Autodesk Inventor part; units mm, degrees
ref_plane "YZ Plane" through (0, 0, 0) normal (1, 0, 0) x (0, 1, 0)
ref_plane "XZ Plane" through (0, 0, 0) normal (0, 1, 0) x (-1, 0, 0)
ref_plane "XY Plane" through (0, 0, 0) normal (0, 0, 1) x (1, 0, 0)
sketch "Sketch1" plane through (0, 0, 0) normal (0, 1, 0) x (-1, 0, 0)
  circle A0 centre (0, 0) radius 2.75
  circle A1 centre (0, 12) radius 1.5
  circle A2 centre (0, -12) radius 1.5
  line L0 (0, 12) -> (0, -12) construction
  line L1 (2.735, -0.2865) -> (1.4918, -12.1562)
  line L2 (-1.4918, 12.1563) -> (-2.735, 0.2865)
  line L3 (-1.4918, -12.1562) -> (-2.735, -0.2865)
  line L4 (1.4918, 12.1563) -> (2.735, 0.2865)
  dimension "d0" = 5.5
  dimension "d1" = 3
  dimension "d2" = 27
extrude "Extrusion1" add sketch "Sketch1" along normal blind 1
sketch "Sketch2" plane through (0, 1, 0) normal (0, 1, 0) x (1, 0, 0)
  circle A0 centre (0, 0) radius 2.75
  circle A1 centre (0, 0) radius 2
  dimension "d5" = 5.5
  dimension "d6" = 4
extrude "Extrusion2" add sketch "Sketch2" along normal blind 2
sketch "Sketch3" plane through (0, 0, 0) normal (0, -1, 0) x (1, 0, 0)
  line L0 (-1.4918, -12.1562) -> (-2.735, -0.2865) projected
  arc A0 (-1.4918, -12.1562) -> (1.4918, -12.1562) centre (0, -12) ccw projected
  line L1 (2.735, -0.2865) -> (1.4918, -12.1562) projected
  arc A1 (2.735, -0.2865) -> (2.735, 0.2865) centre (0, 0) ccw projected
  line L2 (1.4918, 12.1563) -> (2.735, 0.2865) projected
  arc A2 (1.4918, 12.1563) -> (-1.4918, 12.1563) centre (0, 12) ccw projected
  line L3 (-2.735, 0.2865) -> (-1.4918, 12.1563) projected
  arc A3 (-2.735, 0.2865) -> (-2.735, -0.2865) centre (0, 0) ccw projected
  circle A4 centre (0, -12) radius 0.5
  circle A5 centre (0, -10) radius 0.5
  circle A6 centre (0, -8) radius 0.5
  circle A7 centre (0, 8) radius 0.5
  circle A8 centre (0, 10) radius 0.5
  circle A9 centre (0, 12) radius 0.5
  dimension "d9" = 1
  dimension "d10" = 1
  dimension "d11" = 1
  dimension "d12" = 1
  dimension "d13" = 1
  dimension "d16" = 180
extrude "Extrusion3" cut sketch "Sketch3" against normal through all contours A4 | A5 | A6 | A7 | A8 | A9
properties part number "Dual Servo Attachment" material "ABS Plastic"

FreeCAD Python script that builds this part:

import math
import FreeCAD as App
import Part
import Sketcher

V = App.Vector
Q = App.Units.Quantity

doc = App.newDocument("Part")
params = doc.addObject("Spreadsheet::Sheet", "Params")
for row, (alias, value) in enumerate([
    ("sketch1_radius", "1.5 mm"),
    ("sketch1_radius2", "2.75 mm"),
    ("pad1_length", "1 mm"),
    ("sketch2_diameter", "4 mm"),
    ("sketch2_diameter2", "5.5 mm"),
    ("pad2_length", "2 mm"),
    ("sketch3_diameter", "1 mm"),
], start=1):
    params.set(f"A{row}", alias)
    params.set(f"B{row}", "=" + value)
    params.setAlias(f"B{row}", alias)

body = doc.addObject("PartDesign::Body", "Body")

# Sketch on XZ plane
sketch1 = body.newObject("Sketcher::SketchObject", "Sketch")
sketch1.AttachmentSupport = (doc.getObject("XZ_Plane"), [""])
sketch1.MapMode = "FlatFace"
sketch1.addGeometry(Part.ArcOfCircle(Part.Circle(V(0, 0, 0), V(0, 0, 1), 2.8), math.radians(174.02), math.radians(185.98)), False)
sketch1.addGeometry(Part.LineSegment(V(-2.7, 0.3, 0), V(-1.5, 12.2, 0)), False)
sketch1.addGeometry(Part.ArcOfCircle(Part.Circle(V(0, 12, 0), V(0, 0, 1), 1.5), math.radians(6), math.radians(174)), False)
sketch1.addGeometry(Part.LineSegment(V(1.5, 12.2, 0), V(2.7, 0.3, 0)), False)
sketch1.addGeometry(Part.ArcOfCircle(Part.Circle(V(0, 0, 0), V(0, 0, 1), 2.8), math.radians(-5.98), math.radians(5.98)), False)
sketch1.addGeometry(Part.LineSegment(V(2.7, -0.3, 0), V(1.5, -12.2, 0)), False)
sketch1.addGeometry(Part.ArcOfCircle(Part.Circle(V(0, -12, 0), V(0, 0, 1), 1.5), math.radians(-174), math.radians(-6)), False)
sketch1.addGeometry(Part.LineSegment(V(-1.5, -12.2, 0), V(-2.7, -0.3, 0)), False)
sketch1.addConstraint(Sketcher.Constraint("Tangent", 0, 1, 1, 1))
sketch1.addConstraint(Sketcher.Constraint("Tangent", 1, 2, 2, 2))
sketch1.addConstraint(Sketcher.Constraint("Tangent", 2, 1, 3, 1))
sketch1.addConstraint(Sketcher.Constraint("Tangent", 3, 2, 4, 2))
sketch1.addConstraint(Sketcher.Constraint("Tangent", 4, 1, 5, 1))
sketch1.addConstraint(Sketcher.Constraint("Tangent", 5, 2, 6, 2))
sketch1.addConstraint(Sketcher.Constraint("Tangent", 6, 1, 7, 1))
sketch1.addConstraint(Sketcher.Constraint("Tangent", 7, 2, 0, 2))
sketch1.addConstraint(Sketcher.Constraint("Coincident", 0, 3, -1, 1))
sketch1.addConstraint(Sketcher.Constraint("Coincident", 4, 3, -1, 1))
sketch1.addConstraint(Sketcher.Constraint("Equal", 0, 4))
sketch1.addConstraint(Sketcher.Constraint("Equal", 2, 6))
sketch1.addConstraint(Sketcher.Constraint("Symmetric", 2, 3, 6, 3, -1, 1))
sketch1.addConstraint(Sketcher.Constraint("PointOnObject", 2, 3, -2))
sketch1.addConstraint(Sketcher.Constraint("Radius", 2, Q("1.5 mm")))
sketch1.addConstraint(Sketcher.Constraint("Radius", 0, Q("2.75 mm")))
sketch1.addConstraint(Sketcher.Constraint("DistanceY", -1, 1, 2, 3, Q("12 mm")))
sketch1.setExpression("Constraints[14]", "Params.sketch1_radius")
sketch1.setExpression("Constraints[15]", "Params.sketch1_radius2")
pad1 = body.newObject("PartDesign::Pad", "Pad")
pad1.Profile = sketch1
pad1.setExpression("Length", "Params.pad1_length")
pad1.Reversed = True

# Sketch on XZ plane
sketch2 = body.newObject("Sketcher::SketchObject", "Sketch001")
sketch2.AttachmentSupport = (doc.getObject("XZ_Plane"), [""])
sketch2.MapMode = "FlatFace"
sketch2.AttachmentOffset = App.Placement(V(0, 0, -1), App.Rotation())
sketch2.addGeometry(Part.Circle(V(0, 0, 0), V(0, 0, 1), 2.8), False)
sketch2.addGeometry(Part.Circle(V(0, 0, 0), V(0, 0, 1), 2), False)
sketch2.addConstraint(Sketcher.Constraint("Coincident", 0, 3, -1, 1))
sketch2.addConstraint(Sketcher.Constraint("Coincident", 1, 3, -1, 1))
sketch2.addConstraint(Sketcher.Constraint("Diameter", 1, Q("4 mm")))
sketch2.addConstraint(Sketcher.Constraint("Diameter", 0, Q("5.5 mm")))
sketch2.setExpression("Constraints[2]", "Params.sketch2_diameter")
sketch2.setExpression("Constraints[3]", "Params.sketch2_diameter2")
pad2 = body.newObject("PartDesign::Pad", "Pad001")
pad2.Profile = sketch2
pad2.setExpression("Length", "Params.pad2_length")
pad2.Reversed = True

# Sketch on XZ plane
sketch3 = body.newObject("Sketcher::SketchObject", "Sketch002")
sketch3.AttachmentSupport = (doc.getObject("XZ_Plane"), [""])
sketch3.MapMode = "FlatFace"
sketch3.addGeometry(Part.Circle(V(0, -12, 0), V(0, 0, 1), 0.5), False)
sketch3.addGeometry(Part.Circle(V(0, -10, 0), V(0, 0, 1), 0.5), False)
sketch3.addGeometry(Part.Circle(V(0, -8, 0), V(0, 0, 1), 0.5), False)
sketch3.addGeometry(Part.Circle(V(0, 8, 0), V(0, 0, 1), 0.5), False)
sketch3.addGeometry(Part.Circle(V(0, 10, 0), V(0, 0, 1), 0.5), False)
sketch3.addGeometry(Part.Circle(V(0, 12, 0), V(0, 0, 1), 0.5), False)
sketch3.addConstraint(Sketcher.Constraint("Equal", 0, 1))
sketch3.addConstraint(Sketcher.Constraint("Equal", 1, 2))
sketch3.addConstraint(Sketcher.Constraint("Equal", 2, 3))
sketch3.addConstraint(Sketcher.Constraint("Equal", 3, 4))
sketch3.addConstraint(Sketcher.Constraint("Equal", 4, 5))
sketch3.addConstraint(Sketcher.Constraint("Symmetric", 2, 3, 3, 3, -1, 1))
sketch3.addConstraint(Sketcher.Constraint("Symmetric", 1, 3, 4, 3, -1, 1))
sketch3.addConstraint(Sketcher.Constraint("Symmetric", 0, 3, 5, 3, -1, 1))
sketch3.addConstraint(Sketcher.Constraint("PointOnObject", 0, 3, -2))
sketch3.addConstraint(Sketcher.Constraint("PointOnObject", 1, 3, -2))
sketch3.addConstraint(Sketcher.Constraint("PointOnObject", 2, 3, -2))
sketch3.addConstraint(Sketcher.Constraint("Diameter", 0, Q("1 mm")))
sketch3.addConstraint(Sketcher.Constraint("DistanceY", 0, 3, -1, 1, Q("12 mm")))
sketch3.addConstraint(Sketcher.Constraint("DistanceY", 1, 3, -1, 1, Q("10 mm")))
sketch3.addConstraint(Sketcher.Constraint("DistanceY", 2, 3, -1, 1, Q("8 mm")))
sketch3.setExpression("Constraints[11]", "Params.sketch3_diameter")
pocket1 = body.newObject("PartDesign::Pocket", "Pocket")
pocket1.Profile = sketch3
pocket1.Type = "ThroughAll"

doc.recompute()
